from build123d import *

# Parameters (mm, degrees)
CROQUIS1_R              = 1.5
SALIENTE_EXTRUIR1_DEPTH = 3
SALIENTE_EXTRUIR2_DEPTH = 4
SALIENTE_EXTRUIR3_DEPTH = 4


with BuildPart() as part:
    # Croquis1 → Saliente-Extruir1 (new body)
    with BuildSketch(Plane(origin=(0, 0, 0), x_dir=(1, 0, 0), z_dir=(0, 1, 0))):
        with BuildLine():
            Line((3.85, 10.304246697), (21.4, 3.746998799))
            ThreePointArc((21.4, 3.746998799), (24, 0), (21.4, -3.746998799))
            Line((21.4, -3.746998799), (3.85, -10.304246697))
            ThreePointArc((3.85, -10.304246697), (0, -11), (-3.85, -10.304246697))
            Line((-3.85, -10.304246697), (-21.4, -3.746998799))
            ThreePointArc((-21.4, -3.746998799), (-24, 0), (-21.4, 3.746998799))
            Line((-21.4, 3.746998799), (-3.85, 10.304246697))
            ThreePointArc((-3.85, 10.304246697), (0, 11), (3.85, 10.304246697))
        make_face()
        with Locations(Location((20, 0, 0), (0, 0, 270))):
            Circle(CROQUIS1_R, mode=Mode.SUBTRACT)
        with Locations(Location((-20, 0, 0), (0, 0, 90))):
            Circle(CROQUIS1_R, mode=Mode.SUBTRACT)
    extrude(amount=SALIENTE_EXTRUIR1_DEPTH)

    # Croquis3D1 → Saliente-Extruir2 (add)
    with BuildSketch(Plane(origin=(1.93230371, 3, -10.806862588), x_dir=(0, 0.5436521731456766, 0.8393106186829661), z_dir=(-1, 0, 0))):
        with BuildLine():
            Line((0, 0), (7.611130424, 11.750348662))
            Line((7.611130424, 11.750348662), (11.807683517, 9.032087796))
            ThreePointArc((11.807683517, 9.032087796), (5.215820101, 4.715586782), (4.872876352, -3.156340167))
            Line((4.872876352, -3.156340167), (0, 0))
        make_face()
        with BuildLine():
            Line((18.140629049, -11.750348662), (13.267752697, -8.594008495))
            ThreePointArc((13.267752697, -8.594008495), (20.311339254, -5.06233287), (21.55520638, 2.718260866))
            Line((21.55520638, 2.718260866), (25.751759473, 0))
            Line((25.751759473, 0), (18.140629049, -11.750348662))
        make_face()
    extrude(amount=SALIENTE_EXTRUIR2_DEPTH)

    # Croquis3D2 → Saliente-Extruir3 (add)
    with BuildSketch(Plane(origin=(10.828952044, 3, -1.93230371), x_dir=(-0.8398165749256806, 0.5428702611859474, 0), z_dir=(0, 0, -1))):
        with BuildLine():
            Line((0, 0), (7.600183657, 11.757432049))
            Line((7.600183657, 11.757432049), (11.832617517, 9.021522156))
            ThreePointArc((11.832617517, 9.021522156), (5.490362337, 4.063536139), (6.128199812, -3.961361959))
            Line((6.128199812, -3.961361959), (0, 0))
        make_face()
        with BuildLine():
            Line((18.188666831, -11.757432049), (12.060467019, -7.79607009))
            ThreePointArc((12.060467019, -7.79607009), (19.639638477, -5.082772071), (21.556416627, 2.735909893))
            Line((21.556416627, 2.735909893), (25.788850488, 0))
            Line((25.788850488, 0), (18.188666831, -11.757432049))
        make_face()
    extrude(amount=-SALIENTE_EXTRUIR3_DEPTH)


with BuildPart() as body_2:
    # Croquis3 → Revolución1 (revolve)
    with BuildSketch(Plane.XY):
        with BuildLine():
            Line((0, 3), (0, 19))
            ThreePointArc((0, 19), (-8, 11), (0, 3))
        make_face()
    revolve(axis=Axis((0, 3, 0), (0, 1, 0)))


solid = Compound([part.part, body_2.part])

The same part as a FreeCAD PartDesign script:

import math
import FreeCAD as App
import Part
import Sketcher

doc = App.newDocument("Part")
params = doc.addObject("Spreadsheet::Sheet", "Params")
for row, (alias, value) in enumerate([
    ("sketch1_diameter", "3 mm"),
    ("sketch1_radius", "11 mm"),
    ("sketch1_radius2", "4 mm"),
    ("pad1_length", "3 mm"),
    ("sketch2_width", "14 mm"),
    ("sketch2_height", "5 mm"),
    ("pad2_length", "4 mm"),
    ("sketch3_height", "14 mm"),
    ("pad3_length", "4 mm"),
    ("sketch4_radius", "8 mm"),
    ("revolution_angle", "360 deg"),
], start=1):
    params.set(f"A{row}", alias)
    params.set(f"B{row}", "=" + value)
    params.setAlias(f"B{row}", alias)

body = doc.addObject("PartDesign::Body", "Body")

sketch1 = body.newObject("Sketcher::SketchObject", "Sketch")
sketch1.AttachmentSupport = (doc.getObject("XZ_Plane"), [""])
sketch1.MapMode = "FlatFace"
sketch1.addGeometry([
    Part.LineSegment(App.Vector(21.4, -3.7, 0), App.Vector(3.9, -10.3, 0)),
    Part.ArcOfCircle(Part.Circle(App.Vector(0, 0, 0), App.Vector(0, 0, 1), 11), math.radians(-110), math.radians(-70)),
    Part.LineSegment(App.Vector(-3.9, -10.3, 0), App.Vector(-21.4, -3.7, 0)),
    Part.ArcOfCircle(Part.Circle(App.Vector(-20, 0, 0), App.Vector(0, 0, 1), 4), math.radians(110), math.radians(250)),
    Part.LineSegment(App.Vector(-21.4, 3.7, 0), App.Vector(-3.9, 10.3, 0)),
    Part.ArcOfCircle(Part.Circle(App.Vector(0, 0, 0), App.Vector(0, 0, 1), 11), math.radians(70), math.radians(110)),
    Part.LineSegment(App.Vector(3.9, 10.3, 0), App.Vector(21.4, 3.7, 0)),
    Part.ArcOfCircle(Part.Circle(App.Vector(20, 0, 0), App.Vector(0, 0, 1), 4), math.radians(-70), math.radians(70)),
    Part.Circle(App.Vector(20, 0, 0), App.Vector(0, 0, 1), 1.5),
    Part.Circle(App.Vector(-20, 0, 0), App.Vector(0, 0, 1), 1.5),
], False)
sketch1.addConstraint([
    Sketcher.Constraint("Tangent", 0, 2, 1, 2),
    Sketcher.Constraint("Tangent", 1, 1, 2, 1),
    Sketcher.Constraint("Tangent", 2, 2, 3, 2),
    Sketcher.Constraint("Tangent", 3, 1, 4, 1),
    Sketcher.Constraint("Tangent", 4, 2, 5, 2),
    Sketcher.Constraint("Tangent", 5, 1, 6, 1),
    Sketcher.Constraint("Tangent", 6, 2, 7, 2),
    Sketcher.Constraint("Tangent", 7, 1, 0, 1),
    Sketcher.Constraint("Coincident", 1, 3, -1, 1),
    Sketcher.Constraint("Coincident", 5, 3, -1, 1),
    Sketcher.Constraint("Coincident", 8, 3, 7, 3),
    Sketcher.Constraint("Coincident", 9, 3, 3, 3),
    Sketcher.Constraint("Equal", 1, 5),
    Sketcher.Constraint("Equal", 3, 7),
    Sketcher.Constraint("Equal", 8, 9),
    Sketcher.Constraint("Symmetric", 3, 3, 7, 3, -1, 1),
    Sketcher.Constraint("PointOnObject", 3, 3, -1),
    Sketcher.Constraint("Diameter", 8, 3.0),
    Sketcher.Constraint("Radius", 1, 11.0),
    Sketcher.Constraint("Radius", 3, 4.0),
    Sketcher.Constraint("DistanceX", 3, 3, -1, 1, 20.0),
])
sketch1.setExpression("Constraints[17]", "Params.sketch1_diameter")
sketch1.setExpression("Constraints[18]", "Params.sketch1_radius")
sketch1.setExpression("Constraints[19]", "Params.sketch1_radius2")
pad1 = body.newObject("PartDesign::Pad", "Pad")
pad1.Profile = sketch1
pad1.setExpression("Length", "Params.pad1_length")
pad1.Reversed = True

sketch2 = body.newObject("Sketcher::SketchObject", "Sketch001")
sketch2.AttachmentSupport = (doc.getObject("YZ_Plane"), [""])
sketch2.MapMode = "FlatFace"
sketch2.AttachmentOffset = App.Placement(App.Vector(0, 0, 1.932304), App.Rotation())
sketch2.addGeometry([
    Part.LineSegment(App.Vector(17, -10.806863, 0), App.Vector(3, -10.806863, 0)),
    Part.LineSegment(App.Vector(3, -10.806863, 0), App.Vector(3, -5.001055, 0)),
    Part.ArcOfCircle(Part.Circle(App.Vector(10.289646, -0.371684, 0), App.Vector(0, 0, 1), 8.635393), math.radians(-147.581958), math.radians(-39.006401)),
    Part.LineSegment(App.Vector(17, -5.806863, 0), App.Vector(17, -10.806863, 0)),
    Part.LineSegment(App.Vector(3, 5.001055, 0), App.Vector(3, 10.806863, 0)),
    Part.LineSegment(App.Vector(3, 10.806863, 0), App.Vector(17, 10.806863, 0)),
    Part.LineSegment(App.Vector(17, 10.806863, 0), App.Vector(17, 5.806863, 0)),
    Part.ArcOfCircle(Part.Circle(App.Vector(10.289646, 0.371684, 0), App.Vector(0, 0, 1), 8.635393), math.radians(39.006401), math.radians(147.581958)),
], False)
sketch2.addConstraint([
    Sketcher.Constraint("Coincident", 0, 2, 1, 1),
    Sketcher.Constraint("Coincident", 1, 2, 2, 1),
    Sketcher.Constraint("Coincident", 2, 2, 3, 1),
    Sketcher.Constraint("Coincident", 3, 2, 0, 1),
    Sketcher.Constraint("Coincident", 4, 2, 5, 1),
    Sketcher.Constraint("Coincident", 5, 2, 6, 1),
    Sketcher.Constraint("Coincident", 6, 2, 7, 1),
    Sketcher.Constraint("Coincident", 7, 2, 4, 1),
    Sketcher.Constraint("Horizontal", 0),
    Sketcher.Constraint("Vertical", 1),
    Sketcher.Constraint("Vertical", 3),
    Sketcher.Constraint("Vertical", 4),
    Sketcher.Constraint("Horizontal", 5),
    Sketcher.Constraint("Vertical", 6),
    Sketcher.Constraint("Equal", 2, 7),
    Sketcher.Constraint("Symmetric", 2, 3, 7, 3, -1),
    Sketcher.Constraint("Symmetric", 0, 2, 4, 2, -1),
    Sketcher.Constraint("Vertical", 3, 2, 5, 2),
    Sketcher.Constraint("DistanceX", 0, 2, 0, 1, 14.0),
    Sketcher.Constraint("DistanceY", 3, 2, 3, 1, 5.0),
    Sketcher.Constraint("DistanceX", -1, 1, 0, 2, 3.0),
    Sketcher.Constraint("Radius", 2, 8.635393),
    Sketcher.Constraint("DistanceY", 1, 1, 1, 2, 5.805808),
    Sketcher.Constraint("DistanceY", 1, 2, 7, 3, 5.372738),
])
sketch2.setExpression("Constraints[18]", "Params.sketch2_width")
sketch2.setExpression("Constraints[19]", "Params.sketch2_height")
pad2 = body.newObject("PartDesign::Pad", "Pad001")
pad2.Profile = sketch2
pad2.setExpression("Length", "Params.pad2_length")
pad2.Reversed = True

sketch3 = body.newObject("Sketcher::SketchObject", "Sketch002")
sketch3.AttachmentSupport = (doc.getObject("XY_Plane"), [""])
sketch3.MapMode = "FlatFace"
sketch3.AttachmentOffset = App.Placement(App.Vector(0, 0, -1.932304), App.Rotation())
sketch3.addGeometry([
    Part.LineSegment(App.Vector(10.828952, 17, 0), App.Vector(10.828952, 3, 0)),
    Part.LineSegment(App.Vector(10.828952, 3, 0), App.Vector(3.531883, 3, 0)),
    Part.ArcOfCircle(Part.Circle(App.Vector(0.032339, 10.746254, 0), App.Vector(0, 0, 1), 8.500074), math.radians(-65.687859), math.radians(47.368808)),
    Part.LineSegment(App.Vector(5.78924, 17, 0), App.Vector(10.828952, 17, 0)),
    Part.LineSegment(App.Vector(-3.531883, 3, 0), App.Vector(-10.828952, 3, 0)),
    Part.LineSegment(App.Vector(-10.828952, 3, 0), App.Vector(-10.828952, 17, 0)),
    Part.LineSegment(App.Vector(-10.828952, 17, 0), App.Vector(-5.78924, 17, 0)),
    Part.ArcOfCircle(Part.Circle(App.Vector(-0.032339, 10.746254, 0), App.Vector(0, 0, 1), 8.500074), math.radians(132.631192), math.radians(245.687859)),
], False)
sketch3.addConstraint([
    Sketcher.Constraint("Coincident", 0, 2, 1, 1),
    Sketcher.Constraint("Coincident", 1, 2, 2, 1),
    Sketcher.Constraint("Coincident", 2, 2, 3, 1),
    Sketcher.Constraint("Coincident", 3, 2, 0, 1),
    Sketcher.Constraint("Coincident", 4, 2, 5, 1),
    Sketcher.Constraint("Coincident", 5, 2, 6, 1),
    Sketcher.Constraint("Coincident", 6, 2, 7, 1),
    Sketcher.Constraint("Coincident", 7, 2, 4, 1),
    Sketcher.Constraint("Vertical", 0),
    Sketcher.Constraint("Horizontal", 1),
    Sketcher.Constraint("Horizontal", 3),
    Sketcher.Constraint("Horizontal", 4),
    Sketcher.Constraint("Vertical", 5),
    Sketcher.Constraint("Horizontal", 6),
    Sketcher.Constraint("Equal", 2, 7),
    Sketcher.Constraint("Symmetric", 2, 3, 7, 3, -2),
    Sketcher.Constraint("Symmetric", 0, 2, 4, 2, -2),
    Sketcher.Constraint("Horizontal", 3, 2, 5, 2),
    Sketcher.Constraint("DistanceY", 0, 2, 0, 1, 14.0),
    Sketcher.Constraint("DistanceY", -1, 1, 0, 2, 3.0),
    Sketcher.Constraint("Radius", 2, 8.500074),
    Sketcher.Constraint("DistanceX", 1, 2, 1, 1, 7.297069),
    Sketcher.Constraint("DistanceX", 2, 3, 2, 2, 5.756901),
    Sketcher.Constraint("DistanceX", -1, 1, 2, 3, 0.032339),
])
sketch3.setExpression("Constraints[18]", "Params.sketch3_height")
pad3 = body.newObject("PartDesign::Pad", "Pad002")
pad3.Profile = sketch3
pad3.setExpression("Length", "Params.pad3_length")
body2 = doc.addObject("PartDesign::Body", "Body001")

sketch4 = body2.newObject("Sketcher::SketchObject", "Sketch003")
sketch4.AttachmentSupport = (doc.getObject("XY_Plane001"), [""])
sketch4.MapMode = "FlatFace"
sketch4.addGeometry([
    Part.LineSegment(App.Vector(0, 3, 0), App.Vector(0, 19, 0)),
    Part.ArcOfCircle(Part.Circle(App.Vector(0, 11, 0), App.Vector(0, 0, 1), 8), math.radians(90), math.radians(270)),
], False)
sketch4.addConstraint([
    Sketcher.Constraint("Coincident", 0, 1, 1, 2),
    Sketcher.Constraint("Coincident", 1, 1, 0, 2),
    Sketcher.Constraint("Vertical", 0),
    Sketcher.Constraint("PointOnObject", 1, 3, -2),
    Sketcher.Constraint("PointOnObject", 0, 1, -2),
    Sketcher.Constraint("Radius", 1, 8.0),
    Sketcher.Constraint("DistanceY", -1, 1, 1, 3, 11.0),
])
sketch4.setExpression("Constraints[5]", "Params.sketch4_radius")
revolution = body2.newObject("PartDesign::Revolution", "Revolution")
revolution.Profile = sketch4
revolution.ReferenceAxis = (sketch4, ["V_Axis"])
revolution.setExpression("Angle", "Params.revolution_angle")

doc.recompute()
